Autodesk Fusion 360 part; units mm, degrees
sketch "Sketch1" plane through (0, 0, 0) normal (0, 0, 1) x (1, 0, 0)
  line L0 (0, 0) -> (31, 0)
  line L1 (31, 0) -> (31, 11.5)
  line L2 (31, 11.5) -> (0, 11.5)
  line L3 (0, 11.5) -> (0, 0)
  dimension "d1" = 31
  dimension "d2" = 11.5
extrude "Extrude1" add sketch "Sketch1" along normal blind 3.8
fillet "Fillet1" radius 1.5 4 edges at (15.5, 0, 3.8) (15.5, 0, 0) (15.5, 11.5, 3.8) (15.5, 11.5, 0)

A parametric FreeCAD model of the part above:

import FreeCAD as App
import Part
import Sketcher

V = App.Vector


def edges_at(feature, points):
    """Names of the edges that pass closest to the given points."""
    edges = feature.Shape.Edges
    near = lambda p: min(range(len(edges)), key=lambda i: edges[i].distToShape(Part.Vertex(*p))[0])
    return sorted({f"Edge{near(p) + 1}" for p in points})

doc = App.newDocument("Part")
body = doc.addObject("PartDesign::Body", "Body")

sketch1 = body.newObject("Sketcher::SketchObject", "Sketch")
sketch1.AttachmentSupport = (doc.getObject("XY_Plane"), [""])
sketch1.MapMode = "FlatFace"
sketch1.addGeometry(Part.LineSegment(V(0, 11.5, 0), V(0, 0, 0)), False)
sketch1.addGeometry(Part.LineSegment(V(0, 0, 0), V(31, 0, 0)), False)
sketch1.addGeometry(Part.LineSegment(V(31, 0, 0), V(31, 11.5, 0)), False)
sketch1.addGeometry(Part.LineSegment(V(31, 11.5, 0), V(0, 11.5, 0)), False)
sketch1.addConstraint(Sketcher.Constraint("Coincident", 0, 2, 1, 1))
sketch1.addConstraint(Sketcher.Constraint("Coincident", 1, 2, 2, 1))
sketch1.addConstraint(Sketcher.Constraint("Coincident", 2, 2, 3, 1))
sketch1.addConstraint(Sketcher.Constraint("Coincident", 3, 2, 0, 1))
sketch1.addConstraint(Sketcher.Constraint("Vertical", 0))
sketch1.addConstraint(Sketcher.Constraint("Horizontal", 1))
sketch1.addConstraint(Sketcher.Constraint("Vertical", 2))
sketch1.addConstraint(Sketcher.Constraint("Horizontal", 3))
sketch1.addConstraint(Sketcher.Constraint("Coincident", 0, 2, -1, 1))
sketch1.addConstraint(Sketcher.Constraint("DistanceX", 1, 1, 1, 2, 31.0))
sketch1.addConstraint(Sketcher.Constraint("DistanceY", 0, 2, 0, 1, 11.5))
pad1 = body.newObject("PartDesign::Pad", "Pad")
pad1.Profile = sketch1
pad1.Length = 3.8
doc.recompute()

fillet = body.newObject("PartDesign::Fillet", "Fillet")
fillet.Base = (pad1, edges_at(pad1, [
    (15.5, 0, 3.8),
    (15.5, 0, 0),
    (15.5, 11.5, 3.8),
    (15.5, 11.5, 0),
]))
fillet.Radius = 1.5

doc.recompute()
